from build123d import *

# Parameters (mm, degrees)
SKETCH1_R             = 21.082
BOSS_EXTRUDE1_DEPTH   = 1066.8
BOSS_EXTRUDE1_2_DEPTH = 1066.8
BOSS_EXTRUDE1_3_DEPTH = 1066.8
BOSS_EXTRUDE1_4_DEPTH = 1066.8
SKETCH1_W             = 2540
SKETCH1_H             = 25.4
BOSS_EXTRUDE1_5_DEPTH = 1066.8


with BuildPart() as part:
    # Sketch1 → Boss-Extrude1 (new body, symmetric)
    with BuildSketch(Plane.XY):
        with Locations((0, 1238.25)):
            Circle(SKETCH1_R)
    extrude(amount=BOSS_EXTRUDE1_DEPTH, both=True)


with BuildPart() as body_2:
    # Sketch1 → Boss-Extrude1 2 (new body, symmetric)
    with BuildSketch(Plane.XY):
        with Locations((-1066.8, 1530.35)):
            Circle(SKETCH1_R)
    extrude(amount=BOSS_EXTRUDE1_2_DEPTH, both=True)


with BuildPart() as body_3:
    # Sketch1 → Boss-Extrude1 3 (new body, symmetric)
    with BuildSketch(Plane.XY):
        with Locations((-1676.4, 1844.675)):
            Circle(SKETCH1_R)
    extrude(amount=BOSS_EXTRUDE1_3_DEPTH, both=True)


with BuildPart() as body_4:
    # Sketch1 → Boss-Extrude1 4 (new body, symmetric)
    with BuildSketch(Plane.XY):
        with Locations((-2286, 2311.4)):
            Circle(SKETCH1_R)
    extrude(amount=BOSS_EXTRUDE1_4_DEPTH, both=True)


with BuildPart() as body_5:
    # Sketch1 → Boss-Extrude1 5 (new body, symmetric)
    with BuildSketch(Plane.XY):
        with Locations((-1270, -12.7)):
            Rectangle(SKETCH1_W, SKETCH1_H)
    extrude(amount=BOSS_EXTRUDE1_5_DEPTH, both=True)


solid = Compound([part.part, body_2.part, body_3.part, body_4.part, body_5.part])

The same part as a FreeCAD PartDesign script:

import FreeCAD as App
import Part
import Sketcher
Q = App.Units.Quantity


def add_polygon(sketch, points):
    """Adds a closed chain of lines whose ends are joined by coincident constraints."""
    first, n = sketch.GeometryCount, len(points)
    for a, b in zip(points, points[1:] + points[:1]):
        sketch.addGeometry(Part.LineSegment(App.Vector(*a, 0), App.Vector(*b, 0)), False)
    for i in range(n):
        sketch.addConstraint(Sketcher.Constraint("Coincident", first + i, 2, first + (i + 1) % n, 1))

doc = App.newDocument("Part")
params = doc.addObject("Spreadsheet::Sheet", "Params")
for row, (alias, value) in enumerate([
    ("sketch1_diameter", "1.66 in"),
    ("pad1_length", "84 in"),
    ("sketch2_diameter", "1.66 in"),
    ("pad2_length", "84 in"),
    ("sketch3_diameter", "1.66 in"),
    ("pad3_length", "84 in"),
    ("sketch4_diameter", "1.66 in"),
    ("pad4_length", "84 in"),
    ("sketch5_width", "100 in"),
    ("sketch5_height", "1 in"),
    ("pad5_length", "84 in"),
], start=1):
    params.set(f"A{row}", alias)
    params.set(f"B{row}", "=" + value)
    params.setAlias(f"B{row}", alias)

body = doc.addObject("PartDesign::Body", "Body")

# Sketch on XY plane
sketch1 = body.newObject("Sketcher::SketchObject", "Sketch")
sketch1.AttachmentSupport = (doc.getObject("XY_Plane"), [""])
sketch1.MapMode = "FlatFace"
sketch1.addGeometry(Part.Circle(App.Vector(0, 1238.25, 0), App.Vector(0, 0, 1), 21.082), False)
sketch1.addConstraint([
    Sketcher.Constraint("PointOnObject", 0, 3, -2),
    Sketcher.Constraint("Diameter", 0, Q("1.66 in")),
    Sketcher.Constraint("DistanceY", -1, 1, 0, 3, Q("48.75 in")),
])
sketch1.setExpression("Constraints[1]", "Params.sketch1_diameter")
pad1 = body.newObject("PartDesign::Pad", "Pad")
pad1.Profile = sketch1
pad1.setExpression("Length", "Params.pad1_length")
pad1.Midplane = True
body2 = doc.addObject("PartDesign::Body", "Body001")

# Sketch on XY plane
sketch2 = body2.newObject("Sketcher::SketchObject", "Sketch001")
sketch2.AttachmentSupport = (doc.getObject("XY_Plane001"), [""])
sketch2.MapMode = "FlatFace"
sketch2.addGeometry(Part.Circle(App.Vector(-1066.8, 1530.35, 0), App.Vector(0, 0, 1), 21.082), False)
sketch2.addConstraint([
    Sketcher.Constraint("Diameter", 0, Q("1.66 in")),
    Sketcher.Constraint("DistanceX", 0, 3, -1, 1, Q("42 in")),
    Sketcher.Constraint("DistanceY", -1, 1, 0, 3, Q("60.25 in")),
])
sketch2.setExpression("Constraints[0]", "Params.sketch2_diameter")
pad2 = body2.newObject("PartDesign::Pad", "Pad001")
pad2.Profile = sketch2
pad2.setExpression("Length", "Params.pad2_length")
pad2.Midplane = True
body3 = doc.addObject("PartDesign::Body", "Body002")

# Sketch on XY plane
sketch3 = body3.newObject("Sketcher::SketchObject", "Sketch002")
sketch3.AttachmentSupport = (doc.getObject("XY_Plane002"), [""])
sketch3.MapMode = "FlatFace"
sketch3.addGeometry(Part.Circle(App.Vector(-1676.4, 1844.675, 0), App.Vector(0, 0, 1), 21.082), False)
sketch3.addConstraint([
    Sketcher.Constraint("Diameter", 0, Q("1.66 in")),
    Sketcher.Constraint("DistanceX", 0, 3, -1, 1, Q("66 in")),
    Sketcher.Constraint("DistanceY", -1, 1, 0, 3, Q("72.625 in")),
])
sketch3.setExpression("Constraints[0]", "Params.sketch3_diameter")
pad3 = body3.newObject("PartDesign::Pad", "Pad002")
pad3.Profile = sketch3
pad3.setExpression("Length", "Params.pad3_length")
pad3.Midplane = True
body4 = doc.addObject("PartDesign::Body", "Body003")

# Sketch on XY plane
sketch4 = body4.newObject("Sketcher::SketchObject", "Sketch003")
sketch4.AttachmentSupport = (doc.getObject("XY_Plane003"), [""])
sketch4.MapMode = "FlatFace"
sketch4.addGeometry(Part.Circle(App.Vector(-2286, 2311.4, 0), App.Vector(0, 0, 1), 21.082), False)
sketch4.addConstraint([
    Sketcher.Constraint("Diameter", 0, Q("1.66 in")),
    Sketcher.Constraint("DistanceX", 0, 3, -1, 1, Q("90 in")),
    Sketcher.Constraint("DistanceY", -1, 1, 0, 3, Q("91 in")),
])
sketch4.setExpression("Constraints[0]", "Params.sketch4_diameter")
pad4 = body4.newObject("PartDesign::Pad", "Pad003")
pad4.Profile = sketch4
pad4.setExpression("Length", "Params.pad4_length")
pad4.Midplane = True
body5 = doc.addObject("PartDesign::Body", "Body004")

# Sketch on XY plane
sketch5 = body5.newObject("Sketcher::SketchObject", "Sketch004")
sketch5.AttachmentSupport = (doc.getObject("XY_Plane004"), [""])
sketch5.MapMode = "FlatFace"
add_polygon(sketch5, [(-2540, 0), (-2540, -25.4), (0, -25.4), (0, 0)])  # lines 0-3
sketch5.addConstraint([
    Sketcher.Constraint("Vertical", 0),
    Sketcher.Constraint("Horizontal", 1),
    Sketcher.Constraint("Vertical", 2),
    Sketcher.Constraint("Horizontal", 3),
    Sketcher.Constraint("Coincident", 2, 2, -1, 1),
    Sketcher.Constraint("DistanceX", 1, 1, 1, 2, Q("100 in")),
    Sketcher.Constraint("DistanceY", 0, 2, 0, 1, Q("1 in")),
])
sketch5.setExpression("Constraints[9]", "Params.sketch5_width")
sketch5.setExpression("Constraints[10]", "Params.sketch5_height")
pad5 = body5.newObject("PartDesign::Pad", "Pad004")
pad5.Profile = sketch5
pad5.setExpression("Length", "Params.pad5_length")
pad5.Midplane = True

doc.recompute()
